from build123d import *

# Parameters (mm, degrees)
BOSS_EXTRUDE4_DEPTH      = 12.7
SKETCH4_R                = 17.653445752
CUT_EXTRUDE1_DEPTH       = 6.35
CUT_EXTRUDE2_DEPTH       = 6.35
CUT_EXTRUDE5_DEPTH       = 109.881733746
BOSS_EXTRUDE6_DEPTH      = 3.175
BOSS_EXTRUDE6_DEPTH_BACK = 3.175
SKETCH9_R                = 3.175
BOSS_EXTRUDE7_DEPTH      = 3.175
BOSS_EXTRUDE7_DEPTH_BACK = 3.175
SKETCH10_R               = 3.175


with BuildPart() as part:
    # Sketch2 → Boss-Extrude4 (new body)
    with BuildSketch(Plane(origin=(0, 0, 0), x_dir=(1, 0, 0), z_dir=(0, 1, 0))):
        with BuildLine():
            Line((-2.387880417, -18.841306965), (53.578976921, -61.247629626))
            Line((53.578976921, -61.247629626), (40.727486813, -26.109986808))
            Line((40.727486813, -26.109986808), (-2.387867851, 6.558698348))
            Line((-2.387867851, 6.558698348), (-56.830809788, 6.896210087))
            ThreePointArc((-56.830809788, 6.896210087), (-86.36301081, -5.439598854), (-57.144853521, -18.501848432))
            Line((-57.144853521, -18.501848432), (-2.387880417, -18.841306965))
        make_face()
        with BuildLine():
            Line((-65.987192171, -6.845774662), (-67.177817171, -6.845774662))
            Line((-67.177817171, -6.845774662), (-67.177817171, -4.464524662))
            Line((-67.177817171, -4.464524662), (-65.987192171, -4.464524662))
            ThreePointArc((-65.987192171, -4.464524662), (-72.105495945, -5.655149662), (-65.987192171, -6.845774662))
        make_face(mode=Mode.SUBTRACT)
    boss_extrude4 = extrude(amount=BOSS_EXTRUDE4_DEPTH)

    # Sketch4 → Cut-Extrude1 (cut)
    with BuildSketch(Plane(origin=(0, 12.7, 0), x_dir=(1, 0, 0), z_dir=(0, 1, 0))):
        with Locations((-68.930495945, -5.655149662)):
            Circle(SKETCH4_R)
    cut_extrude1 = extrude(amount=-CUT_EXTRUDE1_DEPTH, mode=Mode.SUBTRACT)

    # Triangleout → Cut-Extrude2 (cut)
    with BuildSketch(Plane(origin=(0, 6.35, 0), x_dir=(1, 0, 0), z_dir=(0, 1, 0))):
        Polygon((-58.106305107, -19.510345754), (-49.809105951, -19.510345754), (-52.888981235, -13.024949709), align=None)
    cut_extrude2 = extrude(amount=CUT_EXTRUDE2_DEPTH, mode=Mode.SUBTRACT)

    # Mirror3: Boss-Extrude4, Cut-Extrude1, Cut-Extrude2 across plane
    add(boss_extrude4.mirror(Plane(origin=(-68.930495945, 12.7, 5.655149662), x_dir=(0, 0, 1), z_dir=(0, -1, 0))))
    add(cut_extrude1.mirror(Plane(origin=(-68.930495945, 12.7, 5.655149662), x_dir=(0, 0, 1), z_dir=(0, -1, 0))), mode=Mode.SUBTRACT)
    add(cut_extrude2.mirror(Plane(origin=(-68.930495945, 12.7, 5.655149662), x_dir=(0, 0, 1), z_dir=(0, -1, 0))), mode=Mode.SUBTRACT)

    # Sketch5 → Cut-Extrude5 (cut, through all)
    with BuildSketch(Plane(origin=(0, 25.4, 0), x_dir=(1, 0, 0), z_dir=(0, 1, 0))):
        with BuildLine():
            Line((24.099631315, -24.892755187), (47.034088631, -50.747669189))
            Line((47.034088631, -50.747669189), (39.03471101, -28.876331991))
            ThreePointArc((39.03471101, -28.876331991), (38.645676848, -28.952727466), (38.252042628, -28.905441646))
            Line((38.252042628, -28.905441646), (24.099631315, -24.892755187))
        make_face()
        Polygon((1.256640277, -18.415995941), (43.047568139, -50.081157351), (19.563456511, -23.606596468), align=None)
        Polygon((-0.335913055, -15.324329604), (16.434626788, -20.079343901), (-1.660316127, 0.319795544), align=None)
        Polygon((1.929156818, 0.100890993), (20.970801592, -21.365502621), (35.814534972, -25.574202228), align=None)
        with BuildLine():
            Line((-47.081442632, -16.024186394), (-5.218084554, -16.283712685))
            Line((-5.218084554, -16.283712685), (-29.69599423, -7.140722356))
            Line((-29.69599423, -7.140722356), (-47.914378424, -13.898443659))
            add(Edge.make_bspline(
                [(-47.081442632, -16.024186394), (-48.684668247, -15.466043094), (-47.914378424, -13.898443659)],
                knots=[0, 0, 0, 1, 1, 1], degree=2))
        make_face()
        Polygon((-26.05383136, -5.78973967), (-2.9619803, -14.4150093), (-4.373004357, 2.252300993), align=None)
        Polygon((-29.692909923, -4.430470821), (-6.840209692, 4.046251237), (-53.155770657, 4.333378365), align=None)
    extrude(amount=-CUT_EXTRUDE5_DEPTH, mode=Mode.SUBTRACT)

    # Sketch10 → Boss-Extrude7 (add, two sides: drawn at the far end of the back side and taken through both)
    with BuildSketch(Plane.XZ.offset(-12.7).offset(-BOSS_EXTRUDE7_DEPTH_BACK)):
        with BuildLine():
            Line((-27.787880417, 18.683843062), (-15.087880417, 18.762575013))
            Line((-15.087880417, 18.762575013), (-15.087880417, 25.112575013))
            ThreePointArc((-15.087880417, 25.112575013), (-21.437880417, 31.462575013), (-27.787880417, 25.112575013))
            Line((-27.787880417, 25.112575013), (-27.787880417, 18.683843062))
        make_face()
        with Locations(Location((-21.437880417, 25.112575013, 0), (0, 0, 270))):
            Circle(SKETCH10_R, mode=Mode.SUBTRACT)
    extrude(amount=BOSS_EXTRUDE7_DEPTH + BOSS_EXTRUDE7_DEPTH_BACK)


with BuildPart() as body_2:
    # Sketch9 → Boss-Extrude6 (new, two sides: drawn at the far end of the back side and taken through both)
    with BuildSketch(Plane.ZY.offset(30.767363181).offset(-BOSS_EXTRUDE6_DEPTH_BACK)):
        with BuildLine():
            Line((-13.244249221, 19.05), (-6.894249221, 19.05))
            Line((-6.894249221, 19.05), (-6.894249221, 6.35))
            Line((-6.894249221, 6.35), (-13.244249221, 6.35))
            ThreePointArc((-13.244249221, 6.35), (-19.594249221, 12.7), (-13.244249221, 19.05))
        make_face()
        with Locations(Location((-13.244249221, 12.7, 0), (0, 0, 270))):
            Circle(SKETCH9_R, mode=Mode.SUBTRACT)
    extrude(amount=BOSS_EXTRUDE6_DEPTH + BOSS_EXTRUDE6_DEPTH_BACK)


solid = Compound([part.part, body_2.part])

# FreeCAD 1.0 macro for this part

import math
import FreeCAD as App
import Part
import Sketcher
from FreeCAD import Vector
Q = App.Units.Quantity

doc = App.newDocument("Part")
body = doc.addObject("PartDesign::Body", "Body")

sketch1 = doc.addObject("Sketcher::SketchObject", "Sketch")
body.addObject(sketch1)
sketch1.AttachmentSupport = (doc.XZ_Plane, [""])
sketch1.MapMode = "FlatFace"
sketch1.addGeometry(Part.LineSegment(Vector(-2.38788, 18.841307, 0), Vector(53.578977, 61.24763, 0)), False)
sketch1.addGeometry(Part.LineSegment(Vector(53.578977, 61.24763, 0), Vector(40.727487, 26.109987, 0)), False)
sketch1.addGeometry(Part.LineSegment(Vector(40.727487, 26.109987, 0), Vector(-2.387868, -6.558698, 0)), False)
sketch1.addGeometry(Part.LineSegment(Vector(-2.387868, -6.558698, 0), Vector(-56.83081, -6.89621, 0)), False)
sketch1.addGeometry(Part.ArcOfCircle(Part.Circle(Vector(-68.930496, 5.65515, 0), Vector(0, 0, 1), 17.433847), math.radians(47.466533), math.radians(313.950304)), False)
sketch1.addGeometry(Part.LineSegment(Vector(-57.144854, 18.501848, 0), Vector(-2.38788, 18.841307, 0)), False)
sketch1.addGeometry(Part.LineSegment(Vector(-67.177817, 6.845775, 0), Vector(-65.987192, 6.845775, 0)), False)
sketch1.addGeometry(Part.ArcOfCircle(Part.Circle(Vector(-68.930496, 5.65515, 0), Vector(0, 0, 1), 3.175), math.radians(22.024313), math.radians(337.975687)), False)
sketch1.addGeometry(Part.LineSegment(Vector(-65.987192, 4.464525, 0), Vector(-67.177817, 4.464525, 0)), False)
sketch1.addGeometry(Part.LineSegment(Vector(-67.177817, 4.464525, 0), Vector(-67.177817, 6.845775, 0)), False)
sketch1.addConstraint(Sketcher.Constraint("Coincident", 0, 2, 1, 1))
sketch1.addConstraint(Sketcher.Constraint("Coincident", 1, 2, 2, 1))
sketch1.addConstraint(Sketcher.Constraint("Coincident", 2, 2, 3, 1))
sketch1.addConstraint(Sketcher.Constraint("Coincident", 3, 2, 4, 2))
sketch1.addConstraint(Sketcher.Constraint("Coincident", 4, 1, 5, 1))
sketch1.addConstraint(Sketcher.Constraint("Coincident", 5, 2, 0, 1))
sketch1.addConstraint(Sketcher.Constraint("Coincident", 6, 2, 7, 1))
sketch1.addConstraint(Sketcher.Constraint("Coincident", 7, 2, 8, 1))
sketch1.addConstraint(Sketcher.Constraint("Coincident", 8, 2, 9, 1))
sketch1.addConstraint(Sketcher.Constraint("Coincident", 9, 2, 6, 1))
sketch1.addConstraint(Sketcher.Constraint("Horizontal", 6))
sketch1.addConstraint(Sketcher.Constraint("Horizontal", 8))
sketch1.addConstraint(Sketcher.Constraint("Vertical", 9))
sketch1.addConstraint(Sketcher.Constraint("Coincident", 7, 3, 4, 3))
sketch1.addConstraint(Sketcher.Constraint("Parallel", 0, 2))
sketch1.addConstraint(Sketcher.Constraint("Parallel", 3, 5))
sketch1.addConstraint(Sketcher.Constraint("Vertical", 6, 2, 7, 2))
sketch1.addConstraint(Sketcher.Constraint("Radius", 7, Q("0.125 in")))
sketch1.addConstraint(Sketcher.Constraint("DistanceX", 6, 1, 6, 2, Q("0.046875 in")))
sketch1.addConstraint(Sketcher.Constraint("DistanceY", 9, 1, 9, 2, Q("0.09375 in")))
sketch1.addConstraint(Sketcher.Constraint("Radius", 4, 17.433847))
sketch1.addConstraint(Sketcher.Constraint("Distance", 1, 37.414098))
sketch1.addConstraint(Sketcher.Constraint("DistanceY", 2, 2, -1, 1, 6.558698))
sketch1.addConstraint(Sketcher.Constraint("DistanceY", 4, 3, 4, 1, 12.846699))
sketch1.addConstraint(Sketcher.Constraint("Distance", 3, 54.443988))
sketch1.addConstraint(Sketcher.Constraint("DistanceY", -1, 1, 4, 3, 5.65515))
sketch1.addConstraint(Sketcher.Constraint("DistanceY", -1, 1, 0, 2, 61.24763))
sketch1.addConstraint(Sketcher.Constraint("DistanceX", 3, 2, -1, 1, 56.83081))
sketch1.addConstraint(Sketcher.Constraint("DistanceY", 3, 2, -1, 1, 6.89621))
sketch1.addConstraint(Sketcher.Constraint("DistanceX", 5, 2, -1, 1, 2.38788))
sketch1.addConstraint(Sketcher.Constraint("DistanceX", 1, 2, 0, 2, 12.85149))
pad1 = doc.addObject("PartDesign::Pad", "Pad")
body.addObject(pad1)
pad1.Profile = sketch1
pad1.Length = Q("0.5 in")
pad1.Reversed = True

sketch2 = doc.addObject("Sketcher::SketchObject", "Sketch001")
body.addObject(sketch2)
sketch2.AttachmentSupport = (doc.XZ_Plane, [""])
sketch2.MapMode = "FlatFace"
sketch2.AttachmentOffset = App.Placement(Vector(0, 0, -0.5 * 25.4), App.Rotation())
sketch2.addGeometry(Part.Circle(Vector(-68.930496, 5.65515, 0), Vector(0, 0, 1), 17.653446), False)
sketch2.addConstraint(Sketcher.Constraint("Diameter", 0, 35.306892))
sketch2.addConstraint(Sketcher.Constraint("DistanceY", -1, 1, 0, 3, 5.65515))
sketch2.addConstraint(Sketcher.Constraint("DistanceX", 0, 3, -1, 1, 68.930496))
pocket1 = doc.addObject("PartDesign::Pocket", "Pocket")
body.addObject(pocket1)
pocket1.Profile = sketch2
pocket1.Length = Q("0.25 in")
pocket1.Reversed = True

sketch3 = doc.addObject("Sketcher::SketchObject", "Sketch002")
body.addObject(sketch3)
sketch3.AttachmentSupport = (doc.XZ_Plane, [""])
sketch3.MapMode = "FlatFace"
sketch3.AttachmentOffset = App.Placement(Vector(0, 0, -0.25 * 25.4), App.Rotation())
sketch3.addGeometry(Part.LineSegment(Vector(-58.106305, 19.510346, 0), Vector(-49.809106, 19.510346, 0)), False)
sketch3.addGeometry(Part.LineSegment(Vector(-49.809106, 19.510346, 0), Vector(-52.888981, 13.02495, 0)), False)
sketch3.addGeometry(Part.LineSegment(Vector(-52.888981, 13.02495, 0), Vector(-58.106305, 19.510346, 0)), False)
sketch3.addConstraint(Sketcher.Constraint("Coincident", 0, 2, 1, 1))
sketch3.addConstraint(Sketcher.Constraint("Coincident", 1, 2, 2, 1))
sketch3.addConstraint(Sketcher.Constraint("Coincident", 2, 2, 0, 1))
sketch3.addConstraint(Sketcher.Constraint("Horizontal", 0))
sketch3.addConstraint(Sketcher.Constraint("DistanceX", 0, 1, 0, 2, 8.297199))
sketch3.addConstraint(Sketcher.Constraint("Distance", 2, 8.323511))
sketch3.addConstraint(Sketcher.Constraint("DistanceX", 1, 2, -1, 1, 52.888981))
sketch3.addConstraint(Sketcher.Constraint("DistanceY", -1, 1, 1, 2, 13.02495))
sketch3.addConstraint(Sketcher.Constraint("Distance", 1, 7.179554))
pocket2 = doc.addObject("PartDesign::Pocket", "Pocket001")
body.addObject(pocket2)
pocket2.Profile = sketch3
pocket2.Length = Q("0.25 in")
doc.recompute()

datumplane = doc.addObject("PartDesign::Plane", "DatumPlane")
body.addObject(datumplane)
datumplane.AttachmentSupport = (doc.XZ_Plane, [""])
datumplane.MapMode = "FlatFace"
datumplane.AttachmentOffset = App.Placement(Vector(0, 0, -0.5 * 25.4), App.Rotation())
mirrored = doc.addObject("PartDesign::Mirrored", "Mirrored")
body.addObject(mirrored)
mirrored.Originals = [pad1, pocket1, pocket2]
mirrored.MirrorPlane = (datumplane, [""])
body.Tip = mirrored

sketch4 = doc.addObject("Sketcher::SketchObject", "Sketch003")
body.addObject(sketch4)
sketch4.AttachmentSupport = (doc.XZ_Plane, [""])
sketch4.MapMode = "FlatFace"
sketch4.AttachmentOffset = App.Placement(Vector(0, 0, -1 * 25.4), App.Rotation())
sketch4.addGeometry(Part.LineSegment(Vector(24.099631, 24.892755, 0), Vector(47.034089, 50.747669, 0)), False)
sketch4.addGeometry(Part.LineSegment(Vector(47.034089, 50.747669, 0), Vector(39.034711, 28.876332, 0)), False)
sketch4.addGeometry(Part.ArcOfCircle(Part.Circle(Vector(38.598475, 27.683605, 0), Vector(0, 0, 1), 1.27), math.radians(69.910155), math.radians(105.829824)), False)
sketch4.addGeometry(Part.LineSegment(Vector(38.252043, 28.905442, 0), Vector(24.099631, 24.892755, 0)), False)
sketch4.addGeometry(Part.LineSegment(Vector(1.25664, 18.415996, 0), Vector(43.047568, 50.081157, 0)), False)
sketch4.addGeometry(Part.LineSegment(Vector(43.047568, 50.081157, 0), Vector(19.563457, 23.606596, 0)), False)
sketch4.addGeometry(Part.LineSegment(Vector(19.563457, 23.606596, 0), Vector(1.25664, 18.415996, 0)), False)
sketch4.addGeometry(Part.LineSegment(Vector(-0.335913, 15.32433, 0), Vector(16.434627, 20.079344, 0)), False)
sketch4.addGeometry(Part.LineSegment(Vector(16.434627, 20.079344, 0), Vector(-1.660316, -0.319796, 0)), False)
sketch4.addGeometry(Part.LineSegment(Vector(-1.660316, -0.319796, 0), Vector(-0.335913, 15.32433, 0)), False)
sketch4.addGeometry(Part.LineSegment(Vector(1.929157, -0.100891, 0), Vector(20.970802, 21.365503, 0)), False)
sketch4.addGeometry(Part.LineSegment(Vector(20.970802, 21.365503, 0), Vector(35.814535, 25.574202, 0)), False)
sketch4.addGeometry(Part.LineSegment(Vector(35.814535, 25.574202, 0), Vector(1.929157, -0.100891, 0)), False)
sketch4.addGeometry(Part.LineSegment(Vector(-47.081443, 16.024186, 0), Vector(-5.218085, 16.283713, 0)), False)
sketch4.addGeometry(Part.LineSegment(Vector(-5.218085, 16.283713, 0), Vector(-29.695994, 7.140722, 0)), False)
sketch4.addGeometry(Part.LineSegment(Vector(-29.695994, 7.140722, 0), Vector(-47.914378, 13.898444, 0)), False)
sketch4.addGeometry(Part.BSplineCurve([Vector(-47.081443, 16.024186, 0), Vector(-48.684668, 15.466043, 0), Vector(-47.914378, 13.898444, 0)], [3, 3], [0, 1], False, 2, [1, 1, 1], False), False)
sketch4.addGeometry(Part.LineSegment(Vector(-26.053831, 5.78974, 0), Vector(-2.96198, 14.415009, 0)), False)
sketch4.addGeometry(Part.LineSegment(Vector(-2.96198, 14.415009, 0), Vector(-4.373004, -2.252301, 0)), False)
sketch4.addGeometry(Part.LineSegment(Vector(-4.373004, -2.252301, 0), Vector(-26.053831, 5.78974, 0)), False)
sketch4.addGeometry(Part.LineSegment(Vector(-29.69291, 4.430471, 0), Vector(-6.84021, -4.046251, 0)), False)
sketch4.addGeometry(Part.LineSegment(Vector(-6.84021, -4.046251, 0), Vector(-53.155771, -4.333378, 0)), False)
sketch4.addGeometry(Part.LineSegment(Vector(-53.155771, -4.333378, 0), Vector(-29.69291, 4.430471, 0)), False)
sketch4.addConstraint(Sketcher.Constraint("Block", 16))
sketch4.addConstraint(Sketcher.Constraint("Coincident", 0, 2, 1, 1))
sketch4.addConstraint(Sketcher.Constraint("Coincident", 1, 2, 2, 1))
sketch4.addConstraint(Sketcher.Constraint("Coincident", 2, 2, 3, 1))
sketch4.addConstraint(Sketcher.Constraint("Coincident", 3, 2, 0, 1))
sketch4.addConstraint(Sketcher.Constraint("Coincident", 4, 2, 5, 1))
sketch4.addConstraint(Sketcher.Constraint("Coincident", 5, 2, 6, 1))
sketch4.addConstraint(Sketcher.Constraint("Coincident", 6, 2, 4, 1))
sketch4.addConstraint(Sketcher.Constraint("Coincident", 7, 2, 8, 1))
sketch4.addConstraint(Sketcher.Constraint("Coincident", 8, 2, 9, 1))
sketch4.addConstraint(Sketcher.Constraint("Coincident", 9, 2, 7, 1))
sketch4.addConstraint(Sketcher.Constraint("Coincident", 10, 2, 11, 1))
sketch4.addConstraint(Sketcher.Constraint("Coincident", 11, 2, 12, 1))
sketch4.addConstraint(Sketcher.Constraint("Coincident", 12, 2, 10, 1))
sketch4.addConstraint(Sketcher.Constraint("Coincident", 13, 2, 14, 1))
sketch4.addConstraint(Sketcher.Constraint("Coincident", 14, 2, 15, 1))
sketch4.addConstraint(Sketcher.Constraint("Coincident", 15, 2, 16, 2))
sketch4.addConstraint(Sketcher.Constraint("Coincident", 16, 1, 13, 1))
sketch4.addConstraint(Sketcher.Constraint("Coincident", 17, 2, 18, 1))
sketch4.addConstraint(Sketcher.Constraint("Coincident", 18, 2, 19, 1))
sketch4.addConstraint(Sketcher.Constraint("Coincident", 19, 2, 17, 1))
sketch4.addConstraint(Sketcher.Constraint("Coincident", 20, 2, 21, 1))
sketch4.addConstraint(Sketcher.Constraint("Coincident", 21, 2, 22, 1))
sketch4.addConstraint(Sketcher.Constraint("Coincident", 22, 2, 20, 1))
sketch4.addConstraint(Sketcher.Constraint("Radius", 2, Q("0.05 in")))
sketch4.addConstraint(Sketcher.Constraint("DistanceY", 17, 2, 9, 2, Q("0.0358 in")))
sketch4.addConstraint(Sketcher.Constraint("DistanceX", -1, 1, 10, 2, 20.970802))
sketch4.addConstraint(Sketcher.Constraint("DistanceY", 18, 2, -1, 1, 2.252301))
sketch4.addConstraint(Sketcher.Constraint("DistanceY", 6, 2, 5, 2, 5.190601))
sketch4.addConstraint(Sketcher.Constraint("DistanceY", 8, 2, 2, 3, 28.003401))
sketch4.addConstraint(Sketcher.Constraint("DistanceY", 10, 2, 11, 2, 4.2087))
sketch4.addConstraint(Sketcher.Constraint("DistanceY", 12, 2, 17, 2, 14.5159))
sketch4.addConstraint(Sketcher.Constraint("DistanceY", 21, 2, 14, 2, 11.474101))
sketch4.addConstraint(Sketcher.Constraint("DistanceX", 22, 2, 20, 2, 22.8527))
sketch4.addConstraint(Sketcher.Constraint("Distance", 1, 23.288311))
sketch4.addConstraint(Sketcher.Constraint("Distance", 4, 52.432472))
sketch4.addConstraint(Sketcher.Constraint("Distance", 6, 19.028449))
sketch4.addConstraint(Sketcher.Constraint("Distance", 10, 28.694778))
sketch4.addConstraint(Sketcher.Constraint("Distance", 12, 42.513871))
sketch4.addConstraint(Sketcher.Constraint("Distance", 14, 26.129721))
sketch4.addConstraint(Sketcher.Constraint("Distance", 17, 24.650129))
sketch4.addConstraint(Sketcher.Constraint("Distance", 18, 16.726931))
sketch4.addConstraint(Sketcher.Constraint("Distance", 20, 24.374182))
sketch4.addConstraint(Sketcher.Constraint("Distance", 21, 46.316451))
sketch4.addConstraint(Sketcher.Constraint("DistanceX", -1, 1, 0, 2, 47.034089))
sketch4.addConstraint(Sketcher.Constraint("DistanceY", -1, 1, 0, 2, 50.747669))
sketch4.addConstraint(Sketcher.Constraint("DistanceX", -1, 1, 1, 2, 39.034711))
sketch4.addConstraint(Sketcher.Constraint("DistanceY", -1, 1, 2, 2, 28.905442))
sketch4.addConstraint(Sketcher.Constraint("DistanceX", -1, 1, 3, 2, 24.099631))
sketch4.addConstraint(Sketcher.Constraint("DistanceX", -1, 1, 4, 2, 43.047568))
sketch4.addConstraint(Sketcher.Constraint("DistanceX", -1, 1, 6, 2, 1.25664))
sketch4.addConstraint(Sketcher.Constraint("DistanceY", -1, 1, 9, 2, 15.32433))
sketch4.addConstraint(Sketcher.Constraint("DistanceX", 17, 2, -1, 1, 2.96198))
sketch4.addConstraint(Sketcher.Constraint("DistanceX", 19, 2, -1, 1, 26.053831))
sketch4.addConstraint(Sketcher.Constraint("DistanceX", 20, 2, -1, 1, 6.84021))
sketch4.addConstraint(Sketcher.Constraint("DistanceY", 20, 2, -1, 1, 4.046251))
sketch4.addConstraint(Sketcher.Constraint("DistanceX", 21, 2, -1, 1, 53.155771))
sketch4.addConstraint(Sketcher.Constraint("DistanceX", 2, 2, 1, 2, 0.782668))
sketch4.addConstraint(Sketcher.Constraint("DistanceY", 3, 2, 2, 3, 2.79085))
sketch4.addConstraint(Sketcher.Constraint("DistanceY", 4, 2, 0, 2, 0.666512))
sketch4.addConstraint(Sketcher.Constraint("DistanceX", 7, 2, 5, 2, 3.12883))
sketch4.addConstraint(Sketcher.Constraint("DistanceY", 7, 2, 3, 2, 4.813411))
sketch4.addConstraint(Sketcher.Constraint("DistanceX", 8, 2, 2, 3, 40.258791))
sketch4.addConstraint(Sketcher.Constraint("DistanceX", 9, 2, 7, 2, 16.77054))
sketch4.addConstraint(Sketcher.Constraint("DistanceY", 7, 2, 10, 2, 1.286159))
sketch4.addConstraint(Sketcher.Constraint("DistanceX", 13, 2, 9, 2, 4.882171))
sketch4.addConstraint(Sketcher.Constraint("DistanceY", 8, 2, 13, 2, 16.603508))
pocket3 = doc.addObject("PartDesign::Pocket", "Pocket002")
body.addObject(pocket3)
pocket3.Profile = sketch4
pocket3.Type = "ThroughAll"
pocket3.Reversed = True

sketch5 = doc.addObject("Sketcher::SketchObject", "Sketch004")
body.addObject(sketch5)
sketch5.AttachmentSupport = (doc.XZ_Plane, [""])
sketch5.MapMode = "FlatFace"
sketch5.AttachmentOffset = App.Placement(Vector(0, 0, -0.5 * 25.4), App.Rotation())
sketch5.addGeometry(Part.LineSegment(Vector(-27.78788, 18.683843, 0), Vector(-15.08788, 18.762575, 0)), False)
sketch5.addGeometry(Part.LineSegment(Vector(-15.08788, 18.762575, 0), Vector(-15.08788, 25.112575, 0)), False)
sketch5.addGeometry(Part.ArcOfCircle(Part.Circle(Vector(-21.43788, 25.112575, 0), Vector(0, 0, 1), 6.35), math.radians(0), math.radians(180)), False)
sketch5.addGeometry(Part.LineSegment(Vector(-27.78788, 25.112575, 0), Vector(-27.78788, 18.683843, 0)), False)
sketch5.addGeometry(Part.Circle(Vector(-21.43788, 25.112575, 0), Vector(0, 0, 1), 3.175), False)
sketch5.addConstraint(Sketcher.Constraint("Coincident", 0, 2, 1, 1))
sketch5.addConstraint(Sketcher.Constraint("Tangent", 1, 2, 2, 1))
sketch5.addConstraint(Sketcher.Constraint("Tangent", 2, 2, 3, 1))
sketch5.addConstraint(Sketcher.Constraint("Coincident", 3, 2, 0, 1))
sketch5.addConstraint(Sketcher.Constraint("Vertical", 1))
sketch5.addConstraint(Sketcher.Constraint("Vertical", 3))
sketch5.addConstraint(Sketcher.Constraint("Coincident", 4, 3, 2, 3))
sketch5.addConstraint(Sketcher.Constraint("Diameter", 4, Q("0.25 in")))
sketch5.addConstraint(Sketcher.Constraint("Radius", 2, Q("0.25 in")))
sketch5.addConstraint(Sketcher.Constraint("DistanceY", 1, 1, 1, 2, Q("0.25 in")))
sketch5.addConstraint(Sketcher.Constraint("DistanceY", 3, 2, 3, 1, 6.428732))
sketch5.addConstraint(Sketcher.Constraint("DistanceX", 2, 3, -1, 1, 21.43788))
sketch5.addConstraint(Sketcher.Constraint("DistanceY", -1, 1, 2, 3, 25.112575))
pad2 = doc.addObject("PartDesign::Pad", "Pad001")
body.addObject(pad2)
pad2.Profile = sketch5
pad2.Type = "TwoLengths"
pad2.Length = Q("0.125 in")
pad2.Length2 = Q("0.125 in")
body2 = doc.addObject("PartDesign::Body", "Body001")

sketch6 = doc.addObject("Sketcher::SketchObject", "Sketch005")
body2.addObject(sketch6)
sketch6.AttachmentSupport = (doc.getObject("YZ_Plane001"), [""])
sketch6.MapMode = "FlatFace"
sketch6.AttachmentOffset = App.Placement(Vector(0, 0, -30.767363), App.Rotation())
sketch6.addGeometry(Part.LineSegment(Vector(19.05, -6.894249, 0), Vector(19.05, -13.244249, 0)), False)
sketch6.addGeometry(Part.ArcOfCircle(Part.Circle(Vector(12.7, -13.244249, 0), Vector(0, 0, 1), 6.35), math.radians(180), math.radians(360)), False)
sketch6.addGeometry(Part.LineSegment(Vector(6.35, -13.244249, 0), Vector(6.35, -6.894249, 0)), False)
sketch6.addGeometry(Part.LineSegment(Vector(6.35, -6.894249, 0), Vector(19.05, -6.894249, 0)), False)
sketch6.addGeometry(Part.Circle(Vector(12.7, -13.244249, 0), Vector(0, 0, 1), 3.175), False)
sketch6.addConstraint(Sketcher.Constraint("Tangent", 0, 2, 1, 2))
sketch6.addConstraint(Sketcher.Constraint("Tangent", 1, 1, 2, 1))
sketch6.addConstraint(Sketcher.Constraint("Coincident", 2, 2, 3, 1))
sketch6.addConstraint(Sketcher.Constraint("Coincident", 3, 2, 0, 1))
sketch6.addConstraint(Sketcher.Constraint("Vertical", 0))
sketch6.addConstraint(Sketcher.Constraint("Vertical", 2))
sketch6.addConstraint(Sketcher.Constraint("Horizontal", 3))
sketch6.addConstraint(Sketcher.Constraint("Coincident", 4, 3, 1, 3))
sketch6.addConstraint(Sketcher.Constraint("Diameter", 4, Q("0.25 in")))
sketch6.addConstraint(Sketcher.Constraint("Radius", 1, Q("0.25 in")))
sketch6.addConstraint(Sketcher.Constraint("DistanceY", 0, 2, 0, 1, Q("0.25 in")))
sketch6.addConstraint(Sketcher.Constraint("DistanceX", -1, 1, 1, 3, Q("0.5 in")))
sketch6.addConstraint(Sketcher.Constraint("DistanceY", 1, 3, -1, 1, 13.244249))
pad3 = doc.addObject("PartDesign::Pad", "Pad002")
body2.addObject(pad3)
pad3.Profile = sketch6
pad3.Type = "TwoLengths"
pad3.Length = Q("0.125 in")
pad3.Length2 = Q("0.125 in")
pad3.Reversed = True

doc.recompute()
